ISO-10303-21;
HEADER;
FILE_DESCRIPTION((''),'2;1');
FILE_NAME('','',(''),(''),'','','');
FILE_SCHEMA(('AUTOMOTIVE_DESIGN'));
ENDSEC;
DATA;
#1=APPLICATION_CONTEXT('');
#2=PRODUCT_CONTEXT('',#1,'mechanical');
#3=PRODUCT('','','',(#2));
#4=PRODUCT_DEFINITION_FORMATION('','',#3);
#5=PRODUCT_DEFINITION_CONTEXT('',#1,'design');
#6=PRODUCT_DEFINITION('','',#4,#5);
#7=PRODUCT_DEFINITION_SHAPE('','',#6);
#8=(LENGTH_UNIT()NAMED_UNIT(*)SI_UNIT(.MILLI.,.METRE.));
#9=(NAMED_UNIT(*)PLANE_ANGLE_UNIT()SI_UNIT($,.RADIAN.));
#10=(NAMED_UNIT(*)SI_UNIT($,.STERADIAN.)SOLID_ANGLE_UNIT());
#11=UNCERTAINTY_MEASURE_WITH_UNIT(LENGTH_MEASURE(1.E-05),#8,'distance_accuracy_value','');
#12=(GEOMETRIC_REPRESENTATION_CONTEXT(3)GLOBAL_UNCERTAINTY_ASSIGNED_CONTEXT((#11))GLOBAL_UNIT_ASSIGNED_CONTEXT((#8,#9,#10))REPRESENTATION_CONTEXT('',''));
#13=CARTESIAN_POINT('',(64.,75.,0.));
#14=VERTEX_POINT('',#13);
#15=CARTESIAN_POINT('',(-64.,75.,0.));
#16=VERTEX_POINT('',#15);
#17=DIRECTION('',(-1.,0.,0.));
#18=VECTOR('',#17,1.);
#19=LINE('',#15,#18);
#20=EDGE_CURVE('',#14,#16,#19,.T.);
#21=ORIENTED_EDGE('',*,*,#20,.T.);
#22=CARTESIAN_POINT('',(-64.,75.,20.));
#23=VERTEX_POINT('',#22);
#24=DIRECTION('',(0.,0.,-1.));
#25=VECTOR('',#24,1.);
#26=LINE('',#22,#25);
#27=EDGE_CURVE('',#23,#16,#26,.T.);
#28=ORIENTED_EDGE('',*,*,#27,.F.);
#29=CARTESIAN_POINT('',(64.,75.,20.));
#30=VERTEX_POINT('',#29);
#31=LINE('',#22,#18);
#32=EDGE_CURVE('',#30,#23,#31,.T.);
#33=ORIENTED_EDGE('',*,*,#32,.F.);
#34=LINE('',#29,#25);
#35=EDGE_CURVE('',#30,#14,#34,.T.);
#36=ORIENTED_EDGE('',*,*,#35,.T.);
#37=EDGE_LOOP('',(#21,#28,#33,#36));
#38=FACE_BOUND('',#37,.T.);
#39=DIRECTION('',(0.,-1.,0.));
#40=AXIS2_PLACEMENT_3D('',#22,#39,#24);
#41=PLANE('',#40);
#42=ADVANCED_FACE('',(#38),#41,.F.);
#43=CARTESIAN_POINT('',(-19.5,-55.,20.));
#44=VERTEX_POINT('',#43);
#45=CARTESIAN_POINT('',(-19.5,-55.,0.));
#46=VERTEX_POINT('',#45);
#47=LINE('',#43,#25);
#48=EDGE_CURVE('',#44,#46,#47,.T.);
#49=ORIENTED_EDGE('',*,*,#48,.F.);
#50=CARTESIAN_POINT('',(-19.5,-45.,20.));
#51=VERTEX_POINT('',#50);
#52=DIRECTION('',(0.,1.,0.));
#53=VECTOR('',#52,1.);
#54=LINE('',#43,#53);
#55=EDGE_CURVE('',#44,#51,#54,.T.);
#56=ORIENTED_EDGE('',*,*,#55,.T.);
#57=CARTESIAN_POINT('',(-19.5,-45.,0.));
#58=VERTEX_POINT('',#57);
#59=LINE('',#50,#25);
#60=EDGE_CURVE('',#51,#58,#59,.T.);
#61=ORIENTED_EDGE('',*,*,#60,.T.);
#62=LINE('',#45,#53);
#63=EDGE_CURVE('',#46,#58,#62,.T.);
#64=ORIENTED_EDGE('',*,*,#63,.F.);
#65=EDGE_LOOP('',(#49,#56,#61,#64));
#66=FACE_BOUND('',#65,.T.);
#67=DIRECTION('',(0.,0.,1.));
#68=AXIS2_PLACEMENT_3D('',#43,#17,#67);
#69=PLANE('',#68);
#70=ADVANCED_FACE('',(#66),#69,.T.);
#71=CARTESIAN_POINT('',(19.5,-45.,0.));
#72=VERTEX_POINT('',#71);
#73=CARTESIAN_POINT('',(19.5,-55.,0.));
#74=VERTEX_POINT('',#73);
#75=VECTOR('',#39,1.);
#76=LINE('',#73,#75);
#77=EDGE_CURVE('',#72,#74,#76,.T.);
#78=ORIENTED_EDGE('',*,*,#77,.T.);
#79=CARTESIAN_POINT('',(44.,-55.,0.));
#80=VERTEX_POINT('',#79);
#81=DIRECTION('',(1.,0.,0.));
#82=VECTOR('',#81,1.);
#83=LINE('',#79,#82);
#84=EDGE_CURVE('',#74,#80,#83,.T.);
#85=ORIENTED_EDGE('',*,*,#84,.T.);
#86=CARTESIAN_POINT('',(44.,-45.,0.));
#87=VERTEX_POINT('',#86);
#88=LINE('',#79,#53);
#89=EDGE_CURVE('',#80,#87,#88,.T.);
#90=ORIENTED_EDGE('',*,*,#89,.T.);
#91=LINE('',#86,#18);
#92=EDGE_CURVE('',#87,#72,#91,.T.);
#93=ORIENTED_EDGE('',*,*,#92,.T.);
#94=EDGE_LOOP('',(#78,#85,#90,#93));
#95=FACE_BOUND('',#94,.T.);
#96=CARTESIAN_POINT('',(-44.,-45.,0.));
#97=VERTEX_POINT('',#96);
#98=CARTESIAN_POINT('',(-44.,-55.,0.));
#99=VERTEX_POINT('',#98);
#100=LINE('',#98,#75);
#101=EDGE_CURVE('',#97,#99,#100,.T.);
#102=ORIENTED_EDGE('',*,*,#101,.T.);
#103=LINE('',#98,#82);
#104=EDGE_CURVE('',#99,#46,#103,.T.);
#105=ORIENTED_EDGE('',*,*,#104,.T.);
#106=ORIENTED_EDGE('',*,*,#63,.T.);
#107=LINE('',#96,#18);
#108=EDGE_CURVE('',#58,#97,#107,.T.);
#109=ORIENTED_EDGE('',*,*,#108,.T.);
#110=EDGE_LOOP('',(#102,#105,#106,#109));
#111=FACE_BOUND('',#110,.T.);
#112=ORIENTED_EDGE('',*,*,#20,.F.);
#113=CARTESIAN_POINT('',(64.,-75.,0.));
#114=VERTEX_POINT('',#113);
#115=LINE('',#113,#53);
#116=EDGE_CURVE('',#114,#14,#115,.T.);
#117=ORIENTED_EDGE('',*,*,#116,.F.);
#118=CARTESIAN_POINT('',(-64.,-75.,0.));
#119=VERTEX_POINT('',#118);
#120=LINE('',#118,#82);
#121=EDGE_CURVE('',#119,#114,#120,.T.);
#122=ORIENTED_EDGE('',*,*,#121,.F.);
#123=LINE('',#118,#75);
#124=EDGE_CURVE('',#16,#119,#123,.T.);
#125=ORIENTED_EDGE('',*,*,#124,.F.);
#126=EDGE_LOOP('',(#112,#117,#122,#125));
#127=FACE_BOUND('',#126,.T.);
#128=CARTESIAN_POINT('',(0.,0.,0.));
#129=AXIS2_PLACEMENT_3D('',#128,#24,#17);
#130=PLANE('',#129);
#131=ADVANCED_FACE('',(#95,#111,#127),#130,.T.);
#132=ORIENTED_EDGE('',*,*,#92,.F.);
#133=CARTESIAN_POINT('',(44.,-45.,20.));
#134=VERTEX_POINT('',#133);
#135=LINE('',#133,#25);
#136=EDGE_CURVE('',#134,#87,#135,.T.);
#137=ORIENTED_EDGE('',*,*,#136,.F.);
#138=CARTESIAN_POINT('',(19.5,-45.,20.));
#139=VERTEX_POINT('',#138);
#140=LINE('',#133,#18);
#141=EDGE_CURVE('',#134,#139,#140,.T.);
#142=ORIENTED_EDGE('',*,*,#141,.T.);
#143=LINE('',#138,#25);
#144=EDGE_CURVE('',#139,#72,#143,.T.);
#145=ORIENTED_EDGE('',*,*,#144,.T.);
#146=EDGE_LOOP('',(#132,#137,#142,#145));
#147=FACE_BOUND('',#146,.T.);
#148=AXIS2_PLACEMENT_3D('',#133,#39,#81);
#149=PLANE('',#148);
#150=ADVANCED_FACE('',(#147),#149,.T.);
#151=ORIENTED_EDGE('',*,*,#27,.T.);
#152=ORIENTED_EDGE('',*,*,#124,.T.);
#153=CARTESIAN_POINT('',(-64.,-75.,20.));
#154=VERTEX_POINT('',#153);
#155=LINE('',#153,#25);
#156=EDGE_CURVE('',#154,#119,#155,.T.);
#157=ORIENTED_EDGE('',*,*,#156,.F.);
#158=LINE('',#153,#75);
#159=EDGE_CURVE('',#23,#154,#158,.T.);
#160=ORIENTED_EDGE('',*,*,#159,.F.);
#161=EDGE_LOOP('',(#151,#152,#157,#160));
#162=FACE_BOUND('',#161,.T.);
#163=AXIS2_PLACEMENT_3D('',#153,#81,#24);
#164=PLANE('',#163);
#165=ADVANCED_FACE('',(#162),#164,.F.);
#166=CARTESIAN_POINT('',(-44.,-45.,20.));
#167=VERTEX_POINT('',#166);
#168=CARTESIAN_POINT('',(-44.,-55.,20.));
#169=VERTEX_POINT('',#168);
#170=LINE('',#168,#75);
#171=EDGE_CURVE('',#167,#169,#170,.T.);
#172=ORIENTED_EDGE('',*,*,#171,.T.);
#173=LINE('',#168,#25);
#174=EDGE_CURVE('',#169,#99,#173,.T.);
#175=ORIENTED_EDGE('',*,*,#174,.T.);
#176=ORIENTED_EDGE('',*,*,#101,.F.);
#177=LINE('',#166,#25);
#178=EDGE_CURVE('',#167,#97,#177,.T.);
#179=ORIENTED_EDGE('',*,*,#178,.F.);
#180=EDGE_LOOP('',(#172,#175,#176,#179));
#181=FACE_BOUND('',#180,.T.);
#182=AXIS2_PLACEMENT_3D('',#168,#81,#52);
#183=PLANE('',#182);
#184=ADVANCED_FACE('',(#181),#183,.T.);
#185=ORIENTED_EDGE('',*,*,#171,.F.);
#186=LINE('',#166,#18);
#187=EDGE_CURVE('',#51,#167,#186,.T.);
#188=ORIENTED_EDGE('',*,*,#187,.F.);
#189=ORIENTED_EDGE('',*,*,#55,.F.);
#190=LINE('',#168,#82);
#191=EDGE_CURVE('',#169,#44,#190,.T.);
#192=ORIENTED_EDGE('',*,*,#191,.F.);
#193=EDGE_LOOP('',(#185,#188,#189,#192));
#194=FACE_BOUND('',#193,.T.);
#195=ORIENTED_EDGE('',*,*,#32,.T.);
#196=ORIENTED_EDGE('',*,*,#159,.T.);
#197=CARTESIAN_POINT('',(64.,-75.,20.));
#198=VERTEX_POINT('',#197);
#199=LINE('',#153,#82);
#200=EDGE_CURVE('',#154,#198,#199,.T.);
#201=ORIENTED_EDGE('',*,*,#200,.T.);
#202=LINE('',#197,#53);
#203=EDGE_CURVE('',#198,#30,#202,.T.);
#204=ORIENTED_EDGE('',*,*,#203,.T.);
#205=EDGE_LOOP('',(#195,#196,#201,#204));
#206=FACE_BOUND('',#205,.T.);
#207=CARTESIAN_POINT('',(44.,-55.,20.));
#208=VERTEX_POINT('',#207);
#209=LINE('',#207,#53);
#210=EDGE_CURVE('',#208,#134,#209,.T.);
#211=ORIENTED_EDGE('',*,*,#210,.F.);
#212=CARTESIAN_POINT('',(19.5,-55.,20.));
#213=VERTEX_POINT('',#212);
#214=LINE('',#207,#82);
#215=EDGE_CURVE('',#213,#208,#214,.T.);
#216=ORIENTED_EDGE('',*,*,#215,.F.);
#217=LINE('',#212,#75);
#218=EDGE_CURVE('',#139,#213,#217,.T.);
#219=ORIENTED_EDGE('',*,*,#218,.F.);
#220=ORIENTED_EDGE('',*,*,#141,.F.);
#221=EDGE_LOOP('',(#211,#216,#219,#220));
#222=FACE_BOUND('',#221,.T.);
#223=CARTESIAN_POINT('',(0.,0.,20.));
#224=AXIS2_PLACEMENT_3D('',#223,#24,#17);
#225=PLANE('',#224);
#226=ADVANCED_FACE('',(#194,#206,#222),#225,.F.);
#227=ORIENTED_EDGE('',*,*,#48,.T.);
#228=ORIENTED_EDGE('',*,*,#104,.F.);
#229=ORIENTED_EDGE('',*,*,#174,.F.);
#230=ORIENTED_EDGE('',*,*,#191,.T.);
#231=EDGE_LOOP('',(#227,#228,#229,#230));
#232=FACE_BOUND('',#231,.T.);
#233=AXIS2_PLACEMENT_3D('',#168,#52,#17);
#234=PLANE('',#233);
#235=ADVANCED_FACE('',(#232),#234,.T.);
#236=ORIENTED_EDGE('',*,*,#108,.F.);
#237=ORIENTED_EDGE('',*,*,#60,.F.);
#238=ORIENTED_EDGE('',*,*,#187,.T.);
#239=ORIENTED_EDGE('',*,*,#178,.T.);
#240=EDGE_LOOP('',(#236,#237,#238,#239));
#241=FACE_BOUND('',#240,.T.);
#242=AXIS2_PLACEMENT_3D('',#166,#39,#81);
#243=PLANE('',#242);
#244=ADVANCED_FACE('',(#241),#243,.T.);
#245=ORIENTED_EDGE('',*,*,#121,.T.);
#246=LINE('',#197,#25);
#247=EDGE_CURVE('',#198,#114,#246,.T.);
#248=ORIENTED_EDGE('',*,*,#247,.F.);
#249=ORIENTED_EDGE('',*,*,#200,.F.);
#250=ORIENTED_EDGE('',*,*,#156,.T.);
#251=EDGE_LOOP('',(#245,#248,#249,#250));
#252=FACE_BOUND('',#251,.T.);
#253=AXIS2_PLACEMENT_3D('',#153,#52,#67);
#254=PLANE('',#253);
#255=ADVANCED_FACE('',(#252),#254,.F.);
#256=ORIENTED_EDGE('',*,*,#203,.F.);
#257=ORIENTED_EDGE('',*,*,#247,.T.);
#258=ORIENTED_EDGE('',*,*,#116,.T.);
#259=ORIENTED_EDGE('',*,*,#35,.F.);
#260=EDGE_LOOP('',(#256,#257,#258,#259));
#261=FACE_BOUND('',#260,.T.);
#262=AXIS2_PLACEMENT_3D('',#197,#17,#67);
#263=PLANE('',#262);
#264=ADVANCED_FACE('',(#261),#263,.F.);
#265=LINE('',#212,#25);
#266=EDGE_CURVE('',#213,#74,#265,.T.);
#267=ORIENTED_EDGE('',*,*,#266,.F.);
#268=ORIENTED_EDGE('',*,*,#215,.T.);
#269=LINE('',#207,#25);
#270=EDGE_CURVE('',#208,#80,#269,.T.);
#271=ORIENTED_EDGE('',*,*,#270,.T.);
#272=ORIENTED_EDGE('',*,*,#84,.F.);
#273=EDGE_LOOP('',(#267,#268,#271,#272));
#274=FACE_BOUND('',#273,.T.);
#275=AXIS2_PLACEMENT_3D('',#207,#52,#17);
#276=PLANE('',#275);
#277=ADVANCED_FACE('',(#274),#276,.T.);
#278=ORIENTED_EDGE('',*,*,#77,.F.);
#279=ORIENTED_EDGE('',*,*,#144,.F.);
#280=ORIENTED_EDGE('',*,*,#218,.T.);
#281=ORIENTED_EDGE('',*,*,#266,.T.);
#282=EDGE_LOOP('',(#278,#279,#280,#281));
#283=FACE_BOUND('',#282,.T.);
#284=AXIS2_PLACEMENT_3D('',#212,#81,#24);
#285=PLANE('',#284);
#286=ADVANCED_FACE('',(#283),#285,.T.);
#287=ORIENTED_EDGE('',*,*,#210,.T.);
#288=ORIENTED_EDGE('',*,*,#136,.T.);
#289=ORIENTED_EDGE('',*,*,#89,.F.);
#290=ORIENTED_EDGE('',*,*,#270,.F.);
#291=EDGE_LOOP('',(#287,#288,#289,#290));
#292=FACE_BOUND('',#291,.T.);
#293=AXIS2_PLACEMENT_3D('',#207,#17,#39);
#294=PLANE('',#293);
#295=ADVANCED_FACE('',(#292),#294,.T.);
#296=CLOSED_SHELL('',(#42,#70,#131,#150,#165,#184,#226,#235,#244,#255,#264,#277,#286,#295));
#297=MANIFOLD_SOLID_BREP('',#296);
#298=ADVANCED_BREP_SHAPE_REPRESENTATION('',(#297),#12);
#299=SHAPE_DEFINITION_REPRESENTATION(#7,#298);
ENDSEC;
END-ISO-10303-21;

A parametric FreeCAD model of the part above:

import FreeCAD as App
import Part
import Sketcher

V = App.Vector


def add_polygon(sketch, points):
    """Adds a closed chain of lines whose ends are joined by coincident constraints."""
    first, n = sketch.GeometryCount, len(points)
    for a, b in zip(points, points[1:] + points[:1]):
        sketch.addGeometry(Part.LineSegment(App.Vector(*a, 0), App.Vector(*b, 0)), False)
    for i in range(n):
        sketch.addConstraint(Sketcher.Constraint("Coincident", first + i, 2, first + (i + 1) % n, 1))

doc = App.newDocument("Part")
body = doc.addObject("PartDesign::Body", "Body")

# Sketch on XY plane
sketch1 = body.newObject("Sketcher::SketchObject", "Sketch")
sketch1.AttachmentSupport = (doc.getObject("XY_Plane"), [""])
sketch1.MapMode = "FlatFace"
add_polygon(sketch1, [(-64, 75), (-64, -75), (64, -75), (64, 75)])  # lines 0-3
add_polygon(sketch1, [(-20, -55), (-44, -55), (-44, -45), (-20, -45)])  # lines 4-7
add_polygon(sketch1, [(44, -55), (20, -55), (20, -45), (44, -45)])  # lines 8-11
sketch1.addConstraint([
    Sketcher.Constraint("Vertical", 0),
    Sketcher.Constraint("Horizontal", 1),
    Sketcher.Constraint("Vertical", 2),
    Sketcher.Constraint("Horizontal", 3),
    Sketcher.Constraint("Horizontal", 4),
    Sketcher.Constraint("Vertical", 5),
    Sketcher.Constraint("Horizontal", 6),
    Sketcher.Constraint("Vertical", 7),
    Sketcher.Constraint("Horizontal", 8),
    Sketcher.Constraint("Vertical", 9),
    Sketcher.Constraint("Horizontal", 10),
    Sketcher.Constraint("Vertical", 11),
    Sketcher.Constraint("Symmetric", 0, 2, 2, 2, -1, 1),
    Sketcher.Constraint("Symmetric", 7, 2, 8, 2, -2),
    Sketcher.Constraint("Symmetric", 5, 2, 10, 2, -2),
    Sketcher.Constraint("DistanceX", 1, 1, 1, 2, 128.0),
    Sketcher.Constraint("DistanceY", 0, 2, 0, 1, 150.0),
    Sketcher.Constraint("DistanceY", 5, 1, 5, 2, 10.0),
    Sketcher.Constraint("DistanceX", 4, 2, 4, 1, 24.5),
    Sketcher.Constraint("DistanceX", 4, 2, -1, 1, 44.0),
    Sketcher.Constraint("DistanceY", 4, 2, -1, 1, 55.0),
])
pad1 = body.newObject("PartDesign::Pad", "Pad")
pad1.Profile = sketch1
pad1.Length = 20

doc.recompute()
